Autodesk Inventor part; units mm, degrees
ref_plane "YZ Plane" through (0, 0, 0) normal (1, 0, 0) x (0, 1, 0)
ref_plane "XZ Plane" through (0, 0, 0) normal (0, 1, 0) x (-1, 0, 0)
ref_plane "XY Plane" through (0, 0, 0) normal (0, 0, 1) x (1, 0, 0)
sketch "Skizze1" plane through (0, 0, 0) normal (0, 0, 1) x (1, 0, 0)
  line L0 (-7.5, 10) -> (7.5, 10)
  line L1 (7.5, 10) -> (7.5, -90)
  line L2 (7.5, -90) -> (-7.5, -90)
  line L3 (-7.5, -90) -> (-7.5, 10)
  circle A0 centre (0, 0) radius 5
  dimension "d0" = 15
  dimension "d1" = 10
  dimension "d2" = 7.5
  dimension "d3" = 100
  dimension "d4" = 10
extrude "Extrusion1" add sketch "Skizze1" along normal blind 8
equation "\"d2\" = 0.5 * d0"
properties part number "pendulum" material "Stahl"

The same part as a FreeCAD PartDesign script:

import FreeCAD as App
import Part
import Sketcher
Q = App.Units.Quantity

doc = App.newDocument("Part")
body = doc.addObject("PartDesign::Body", "Body")

# Sketch on XY plane
sketch1 = doc.addObject("Sketcher::SketchObject", "Sketch")
body.addObject(sketch1)
sketch1.AttachmentSupport = (doc.XY_Plane, [""])
sketch1.MapMode = "FlatFace"
sketch1.addGeometry(Part.LineSegment(App.Vector(8, 10, 0), App.Vector(-8, 10, 0)), False)
sketch1.addGeometry(Part.LineSegment(App.Vector(-8, 10, 0), App.Vector(-8, -90, 0)), False)
sketch1.addGeometry(Part.LineSegment(App.Vector(-8, -90, 0), App.Vector(8, -90, 0)), False)
sketch1.addGeometry(Part.LineSegment(App.Vector(8, -90, 0), App.Vector(8, 10, 0)), False)
sketch1.addGeometry(Part.Circle(App.Vector(0, 0, 0), App.Vector(0, 0, 1), 5), False)
sketch1.addConstraint(Sketcher.Constraint("Coincident", 0, 2, 1, 1))
sketch1.addConstraint(Sketcher.Constraint("Coincident", 1, 2, 2, 1))
sketch1.addConstraint(Sketcher.Constraint("Coincident", 2, 2, 3, 1))
sketch1.addConstraint(Sketcher.Constraint("Coincident", 3, 2, 0, 1))
sketch1.addConstraint(Sketcher.Constraint("Horizontal", 0))
sketch1.addConstraint(Sketcher.Constraint("Vertical", 1))
sketch1.addConstraint(Sketcher.Constraint("Horizontal", 2))
sketch1.addConstraint(Sketcher.Constraint("Vertical", 3))
sketch1.addConstraint(Sketcher.Constraint("Coincident", 4, 3, -1, 1))
sketch1.addConstraint(Sketcher.Constraint("Diameter", 4, Q("10 mm")))
sketch1.addConstraint(Sketcher.Constraint("DistanceX", 0, 2, 0, 1, Q("15 mm")))
sketch1.addConstraint(Sketcher.Constraint("DistanceY", 1, 2, 1, 1, Q("100 mm")))
sketch1.addConstraint(Sketcher.Constraint("DistanceY", -1, 1, 0, 2, Q("10 mm")))
sketch1.addConstraint(Sketcher.Constraint("DistanceX", 0, 2, -1, 1, Q("7.5 mm")))
pad1 = doc.addObject("PartDesign::Pad", "Pad")
body.addObject(pad1)
pad1.Profile = sketch1
pad1.Length = 8

doc.recompute()
